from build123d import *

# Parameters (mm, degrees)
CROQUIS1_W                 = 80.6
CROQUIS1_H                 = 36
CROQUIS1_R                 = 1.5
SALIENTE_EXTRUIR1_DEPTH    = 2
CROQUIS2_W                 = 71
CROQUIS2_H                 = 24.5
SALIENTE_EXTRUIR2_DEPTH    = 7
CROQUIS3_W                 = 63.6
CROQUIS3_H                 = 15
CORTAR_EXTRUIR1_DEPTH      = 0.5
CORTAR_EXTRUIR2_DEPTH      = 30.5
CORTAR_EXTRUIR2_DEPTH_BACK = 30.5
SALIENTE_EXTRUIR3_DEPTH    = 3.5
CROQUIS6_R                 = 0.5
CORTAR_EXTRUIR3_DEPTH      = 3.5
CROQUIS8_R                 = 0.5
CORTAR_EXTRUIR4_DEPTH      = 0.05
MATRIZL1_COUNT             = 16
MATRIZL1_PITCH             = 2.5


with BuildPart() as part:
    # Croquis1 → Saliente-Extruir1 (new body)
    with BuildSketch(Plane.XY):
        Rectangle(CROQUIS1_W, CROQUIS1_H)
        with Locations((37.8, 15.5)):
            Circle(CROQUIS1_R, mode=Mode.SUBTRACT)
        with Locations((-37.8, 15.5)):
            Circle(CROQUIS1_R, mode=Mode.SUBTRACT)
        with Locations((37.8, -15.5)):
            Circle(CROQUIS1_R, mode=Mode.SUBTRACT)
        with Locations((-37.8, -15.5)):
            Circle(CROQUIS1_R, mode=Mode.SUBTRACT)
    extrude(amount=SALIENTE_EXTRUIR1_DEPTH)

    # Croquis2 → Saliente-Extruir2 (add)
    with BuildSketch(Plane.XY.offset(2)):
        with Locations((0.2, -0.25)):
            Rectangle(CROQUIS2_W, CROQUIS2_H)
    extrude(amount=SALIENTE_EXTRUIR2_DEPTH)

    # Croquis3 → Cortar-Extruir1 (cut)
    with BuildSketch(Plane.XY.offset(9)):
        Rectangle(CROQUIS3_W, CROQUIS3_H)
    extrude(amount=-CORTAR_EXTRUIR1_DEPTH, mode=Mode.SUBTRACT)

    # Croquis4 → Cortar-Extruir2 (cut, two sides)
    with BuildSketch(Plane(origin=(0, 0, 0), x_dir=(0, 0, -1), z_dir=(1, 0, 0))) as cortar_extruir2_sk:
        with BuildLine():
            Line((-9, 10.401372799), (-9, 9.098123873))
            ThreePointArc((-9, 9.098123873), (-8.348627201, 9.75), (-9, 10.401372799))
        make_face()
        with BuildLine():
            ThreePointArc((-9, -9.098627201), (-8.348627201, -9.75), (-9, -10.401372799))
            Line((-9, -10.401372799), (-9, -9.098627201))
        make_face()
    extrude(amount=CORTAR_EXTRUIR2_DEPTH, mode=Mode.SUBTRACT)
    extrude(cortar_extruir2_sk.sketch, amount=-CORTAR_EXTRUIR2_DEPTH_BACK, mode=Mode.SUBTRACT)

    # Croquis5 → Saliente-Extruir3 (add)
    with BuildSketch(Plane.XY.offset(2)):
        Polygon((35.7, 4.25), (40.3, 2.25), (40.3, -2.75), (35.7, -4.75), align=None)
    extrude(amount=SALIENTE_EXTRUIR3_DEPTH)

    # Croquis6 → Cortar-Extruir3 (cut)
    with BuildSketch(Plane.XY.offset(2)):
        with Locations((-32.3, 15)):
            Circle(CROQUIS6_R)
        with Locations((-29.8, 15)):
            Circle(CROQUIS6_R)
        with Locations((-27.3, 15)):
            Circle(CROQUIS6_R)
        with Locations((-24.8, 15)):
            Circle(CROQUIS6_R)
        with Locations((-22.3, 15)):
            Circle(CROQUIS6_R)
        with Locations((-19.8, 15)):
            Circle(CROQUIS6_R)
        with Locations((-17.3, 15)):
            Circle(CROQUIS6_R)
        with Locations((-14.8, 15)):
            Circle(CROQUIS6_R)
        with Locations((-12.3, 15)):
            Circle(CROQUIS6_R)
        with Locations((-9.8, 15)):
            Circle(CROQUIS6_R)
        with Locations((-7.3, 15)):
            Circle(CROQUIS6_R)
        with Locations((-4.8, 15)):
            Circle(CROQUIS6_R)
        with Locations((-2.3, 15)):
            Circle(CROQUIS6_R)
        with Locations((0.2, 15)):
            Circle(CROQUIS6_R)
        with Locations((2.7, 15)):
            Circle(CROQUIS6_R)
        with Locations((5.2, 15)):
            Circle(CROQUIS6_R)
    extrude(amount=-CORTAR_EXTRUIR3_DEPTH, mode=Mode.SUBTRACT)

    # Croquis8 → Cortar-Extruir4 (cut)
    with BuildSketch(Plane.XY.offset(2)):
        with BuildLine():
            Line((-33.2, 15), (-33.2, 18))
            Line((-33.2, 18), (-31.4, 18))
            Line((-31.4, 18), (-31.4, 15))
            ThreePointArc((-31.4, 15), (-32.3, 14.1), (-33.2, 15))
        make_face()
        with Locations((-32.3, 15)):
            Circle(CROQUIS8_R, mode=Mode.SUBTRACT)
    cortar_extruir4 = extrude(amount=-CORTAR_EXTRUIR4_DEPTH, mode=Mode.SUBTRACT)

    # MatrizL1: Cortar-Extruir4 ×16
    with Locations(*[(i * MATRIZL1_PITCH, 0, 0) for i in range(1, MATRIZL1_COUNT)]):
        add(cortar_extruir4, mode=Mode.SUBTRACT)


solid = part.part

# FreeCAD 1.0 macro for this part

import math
import FreeCAD as App
import Part
import Sketcher

V = App.Vector


def add_polygon(sketch, points):
    """Adds a closed chain of lines whose ends are joined by coincident constraints."""
    first, n = sketch.GeometryCount, len(points)
    for a, b in zip(points, points[1:] + points[:1]):
        sketch.addGeometry(Part.LineSegment(App.Vector(*a, 0), App.Vector(*b, 0)), False)
    for i in range(n):
        sketch.addConstraint(Sketcher.Constraint("Coincident", first + i, 2, first + (i + 1) % n, 1))

doc = App.newDocument("Part")
body = doc.addObject("PartDesign::Body", "Body")

sketch1 = doc.addObject("Sketcher::SketchObject", "Sketch")
body.addObject(sketch1)
sketch1.AttachmentSupport = (doc.XY_Plane, [""])
sketch1.MapMode = "FlatFace"
add_polygon(sketch1, [(-40.3, 18), (-40.3, -18), (40.3, -18), (40.3, 18)])
sketch1.addGeometry(Part.Circle(V(-37.8, -15.5, 0), V(0, 0, 1), 1.5), False)
sketch1.addGeometry(Part.Circle(V(37.8, -15.5, 0), V(0, 0, 1), 1.5), False)
sketch1.addGeometry(Part.Circle(V(-37.8, 15.5, 0), V(0, 0, 1), 1.5), False)
sketch1.addGeometry(Part.Circle(V(37.8, 15.5, 0), V(0, 0, 1), 1.5), False)
sketch1.addConstraint([
    Sketcher.Constraint("Vertical", 0),
    Sketcher.Constraint("Horizontal", 1),
    Sketcher.Constraint("Vertical", 2),
    Sketcher.Constraint("Horizontal", 3),
    Sketcher.Constraint("Equal", 4, 5),
    Sketcher.Constraint("Equal", 5, 6),
    Sketcher.Constraint("Equal", 6, 7),
    Sketcher.Constraint("Symmetric", 5, 3, 6, 3, -1, 1),
    Sketcher.Constraint("Symmetric", 4, 3, 7, 3, -1, 1),
    Sketcher.Constraint("Symmetric", 0, 2, 2, 2, -1, 1),
    Sketcher.Constraint("Symmetric", 4, 3, 5, 3, -2),
    Sketcher.Constraint("Diameter", 4, 3.0),
    Sketcher.Constraint("DistanceY", 0, 2, 0, 1, 36.0),
    Sketcher.Constraint("DistanceX", 1, 1, 1, 2, 80.6),
    Sketcher.Constraint("DistanceY", 4, 3, 6, 3, 31.0),
    Sketcher.Constraint("DistanceX", 4, 3, -1, 1, 37.8),
])
pad1 = doc.addObject("PartDesign::Pad", "Pad")
body.addObject(pad1)
pad1.Profile = sketch1
pad1.Length = 2

sketch2 = doc.addObject("Sketcher::SketchObject", "Sketch001")
body.addObject(sketch2)
sketch2.AttachmentSupport = (doc.XY_Plane, [""])
sketch2.MapMode = "FlatFace"
sketch2.AttachmentOffset = App.Placement(V(0, 0, 2), App.Rotation())
add_polygon(sketch2, [(-35, 12), (-35, -12), (36, -12), (36, 12)])
sketch2.addConstraint([
    Sketcher.Constraint("Vertical", 0),
    Sketcher.Constraint("Horizontal", 1),
    Sketcher.Constraint("Vertical", 2),
    Sketcher.Constraint("Horizontal", 3),
    Sketcher.Constraint("DistanceX", 1, 1, 1, 2, 71.0),
    Sketcher.Constraint("DistanceY", 0, 2, 0, 1, 24.5),
    Sketcher.Constraint("DistanceY", -1, 1, 2, 2, 12.0),
    Sketcher.Constraint("DistanceX", 0, 2, -1, 1, 35.3),
])
pad2 = doc.addObject("PartDesign::Pad", "Pad001")
body.addObject(pad2)
pad2.Profile = sketch2
pad2.Length = 7

sketch3 = doc.addObject("Sketcher::SketchObject", "Sketch002")
body.addObject(sketch3)
sketch3.AttachmentSupport = (doc.XY_Plane, [""])
sketch3.MapMode = "FlatFace"
sketch3.AttachmentOffset = App.Placement(V(0, 0, 9), App.Rotation())
add_polygon(sketch3, [(-32, 8), (-32, -8), (32, -8), (32, 8)])
sketch3.addConstraint([
    Sketcher.Constraint("Vertical", 0),
    Sketcher.Constraint("Horizontal", 1),
    Sketcher.Constraint("Vertical", 2),
    Sketcher.Constraint("Horizontal", 3),
    Sketcher.Constraint("Symmetric", 0, 2, 2, 2, -1, 1),
    Sketcher.Constraint("DistanceY", 0, 2, 0, 1, 15.0),
    Sketcher.Constraint("DistanceX", 1, 1, 1, 2, 63.6),
])
pocket1 = doc.addObject("PartDesign::Pocket", "Pocket")
body.addObject(pocket1)
pocket1.Profile = sketch3
pocket1.Length = 0.5

sketch4 = doc.addObject("Sketcher::SketchObject", "Sketch003")
body.addObject(sketch4)
sketch4.AttachmentSupport = (doc.YZ_Plane, [""])
sketch4.MapMode = "FlatFace"
sketch4.addGeometry([
    Part.LineSegment(V(10.4, 9, 0), V(9.1, 9, 0)),
    Part.ArcOfCircle(Part.Circle(V(9.7, 9, 0), V(0, 0, 1), 0.7), math.radians(-180), math.radians(0)),
    Part.ArcOfCircle(Part.Circle(V(-9.8, 9, 0), V(0, 0, 1), 0.7), math.radians(180), math.radians(360)),
    Part.LineSegment(V(-9.1, 9, 0), V(-10.4, 9, 0)),
], False)
sketch4.addConstraint([
    Sketcher.Constraint("Coincident", 0, 1, 1, 2),
    Sketcher.Constraint("Coincident", 1, 1, 0, 2),
    Sketcher.Constraint("Coincident", 2, 1, 3, 2),
    Sketcher.Constraint("Coincident", 3, 1, 2, 2),
    Sketcher.Constraint("Horizontal", 0),
    Sketcher.Constraint("Horizontal", 3),
    Sketcher.Constraint("Symmetric", 0, 1, 2, 1, -2),
    Sketcher.Constraint("Horizontal", 2, 3, 0, 1),
    Sketcher.Constraint("DistanceY", -1, 1, 2, 3, 9.0),
    Sketcher.Constraint("DistanceX", 3, 1, 0, 1, 19.5),
    Sketcher.Constraint("Radius", 1, 0.651625),
    Sketcher.Constraint("Radius", 2, 0.651373),
    Sketcher.Constraint("DistanceY", -1, 1, 1, 3, 9.000252),
])
pocket2 = doc.addObject("PartDesign::Pocket", "Pocket001")
body.addObject(pocket2)
pocket2.Profile = sketch4
pocket2.Type = "TwoLengths"
pocket2.Length = 30.5
pocket2.Length2 = 30.5
pocket2.Reversed = True

sketch5 = doc.addObject("Sketcher::SketchObject", "Sketch004")
body.addObject(sketch5)
sketch5.AttachmentSupport = (doc.XY_Plane, [""])
sketch5.MapMode = "FlatFace"
sketch5.AttachmentOffset = App.Placement(V(0, 0, 2), App.Rotation())
add_polygon(sketch5, [(40, 2), (36, 4), (36, -5), (40, -3)])
sketch5.addConstraint([
    Sketcher.Constraint("Vertical", 1),
    Sketcher.Constraint("Vertical", 3),
    Sketcher.Constraint("Equal", 0, 2),
    Sketcher.Constraint("DistanceY", 1, 2, 1, 1, 9.0),
    Sketcher.Constraint("DistanceY", 3, 1, 3, 2, 5.0),
    Sketcher.Constraint("DistanceX", -1, 1, 0, 2, 35.7),
    Sketcher.Constraint("DistanceX", -1, 1, 2, 2, 40.3),
    Sketcher.Constraint("DistanceY", -1, 1, 0, 2, 4.25),
])
pad3 = doc.addObject("PartDesign::Pad", "Pad002")
body.addObject(pad3)
pad3.Profile = sketch5
pad3.Length = 3.5

sketch6 = doc.addObject("Sketcher::SketchObject", "Sketch005")
body.addObject(sketch6)
sketch6.AttachmentSupport = (doc.XY_Plane, [""])
sketch6.MapMode = "FlatFace"
sketch6.AttachmentOffset = App.Placement(V(0, 0, 2), App.Rotation())
sketch6.addGeometry([
    Part.Circle(V(-32.3, 15, 0), V(0, 0, 1), 0.5),
    Part.Circle(V(-29.8, 15, 0), V(0, 0, 1), 0.5),
    Part.Circle(V(-27.3, 15, 0), V(0, 0, 1), 0.5),
    Part.Circle(V(-24.8, 15, 0), V(0, 0, 1), 0.5),
    Part.Circle(V(-22.3, 15, 0), V(0, 0, 1), 0.5),
    Part.Circle(V(-19.8, 15, 0), V(0, 0, 1), 0.5),
    Part.Circle(V(-17.3, 15, 0), V(0, 0, 1), 0.5),
    Part.Circle(V(-14.8, 15, 0), V(0, 0, 1), 0.5),
    Part.Circle(V(-12.3, 15, 0), V(0, 0, 1), 0.5),
    Part.Circle(V(-9.8, 15, 0), V(0, 0, 1), 0.5),
    Part.Circle(V(-7.3, 15, 0), V(0, 0, 1), 0.5),
    Part.Circle(V(-4.8, 15, 0), V(0, 0, 1), 0.5),
    Part.Circle(V(-2.3, 15, 0), V(0, 0, 1), 0.5),
    Part.Circle(V(0.2, 15, 0), V(0, 0, 1), 0.5),
    Part.Circle(V(2.7, 15, 0), V(0, 0, 1), 0.5),
    Part.Circle(V(5.2, 15, 0), V(0, 0, 1), 0.5),
], False)
sketch6.addConstraint([
    Sketcher.Constraint("Equal", 0, 1),
    Sketcher.Constraint("Equal", 1, 2),
    Sketcher.Constraint("Equal", 2, 3),
    Sketcher.Constraint("Equal", 3, 4),
    Sketcher.Constraint("Equal", 4, 5),
    Sketcher.Constraint("Equal", 5, 6),
    Sketcher.Constraint("Equal", 6, 7),
    Sketcher.Constraint("Equal", 7, 8),
    Sketcher.Constraint("Equal", 8, 9),
    Sketcher.Constraint("Equal", 9, 10),
    Sketcher.Constraint("Equal", 10, 11),
    Sketcher.Constraint("Equal", 11, 12),
    Sketcher.Constraint("Equal", 12, 13),
    Sketcher.Constraint("Equal", 13, 14),
    Sketcher.Constraint("Equal", 14, 15),
    Sketcher.Constraint("Horizontal", 0, 3, 1, 3),
    Sketcher.Constraint("Horizontal", 1, 3, 2, 3),
    Sketcher.Constraint("Horizontal", 2, 3, 3, 3),
    Sketcher.Constraint("Horizontal", 3, 3, 4, 3),
    Sketcher.Constraint("Horizontal", 4, 3, 5, 3),
    Sketcher.Constraint("Horizontal", 5, 3, 6, 3),
    Sketcher.Constraint("Horizontal", 6, 3, 7, 3),
    Sketcher.Constraint("Horizontal", 7, 3, 8, 3),
    Sketcher.Constraint("Horizontal", 8, 3, 9, 3),
    Sketcher.Constraint("Horizontal", 9, 3, 10, 3),
    Sketcher.Constraint("Horizontal", 10, 3, 11, 3),
    Sketcher.Constraint("Horizontal", 11, 3, 12, 3),
    Sketcher.Constraint("Horizontal", 12, 3, 13, 3),
    Sketcher.Constraint("Horizontal", 13, 3, 14, 3),
    Sketcher.Constraint("Horizontal", 14, 3, 15, 3),
    Sketcher.Constraint("Diameter", 0, 1.0),
    Sketcher.Constraint("DistanceY", -1, 1, 0, 3, 15.0),
    Sketcher.Constraint("DistanceX", 0, 3, 2, 3, 5.0),
    Sketcher.Constraint("DistanceX", 1, 3, 3, 3, 5.0),
    Sketcher.Constraint("DistanceX", 2, 3, 4, 3, 5.0),
    Sketcher.Constraint("DistanceX", 3, 3, 5, 3, 5.0),
    Sketcher.Constraint("DistanceX", 4, 3, 6, 3, 5.0),
    Sketcher.Constraint("DistanceX", 5, 3, 7, 3, 5.0),
    Sketcher.Constraint("DistanceX", 6, 3, 8, 3, 5.0),
    Sketcher.Constraint("DistanceX", 7, 3, 9, 3, 5.0),
    Sketcher.Constraint("DistanceX", 8, 3, 10, 3, 5.0),
    Sketcher.Constraint("DistanceX", 9, 3, 11, 3, 5.0),
    Sketcher.Constraint("DistanceX", 10, 3, 12, 3, 5.0),
    Sketcher.Constraint("DistanceX", 11, 3, 13, 3, 5.0),
    Sketcher.Constraint("DistanceX", 12, 3, 14, 3, 5.0),
    Sketcher.Constraint("DistanceX", 13, 3, 15, 3, 5.0),
    Sketcher.Constraint("DistanceX", 0, 3, -1, 1, 32.3),
    Sketcher.Constraint("DistanceX", 1, 3, -1, 1, 29.8),
])
pocket3 = doc.addObject("PartDesign::Pocket", "Pocket002")
body.addObject(pocket3)
pocket3.Profile = sketch6
pocket3.Length = 3.5

sketch7 = doc.addObject("Sketcher::SketchObject", "Sketch006")
body.addObject(sketch7)
sketch7.AttachmentSupport = (doc.XY_Plane, [""])
sketch7.MapMode = "FlatFace"
sketch7.AttachmentOffset = App.Placement(V(0, 0, 2), App.Rotation())
sketch7.addGeometry([
    Part.LineSegment(V(-33.2, 18, 0), V(-33.2, 15, 0)),
    Part.ArcOfCircle(Part.Circle(V(-32.3, 15, 0), V(0, 0, 1), 0.9), math.radians(180), math.radians(360)),
    Part.LineSegment(V(-31.4, 15, 0), V(-31.4, 18, 0)),
    Part.LineSegment(V(-31.4, 18, 0), V(-33.2, 18, 0)),
    Part.Circle(V(-32.3, 15, 0), V(0, 0, 1), 0.5),
], False)
sketch7.addConstraint([
    Sketcher.Constraint("Tangent", 0, 2, 1, 1),
    Sketcher.Constraint("Tangent", 1, 2, 2, 1),
    Sketcher.Constraint("Coincident", 2, 2, 3, 1),
    Sketcher.Constraint("Coincident", 3, 2, 0, 1),
    Sketcher.Constraint("Vertical", 0),
    Sketcher.Constraint("Vertical", 2),
    Sketcher.Constraint("Horizontal", 3),
    Sketcher.Constraint("Coincident", 4, 3, 1, 3),
    Sketcher.Constraint("Diameter", 4, 1.0),
    Sketcher.Constraint("Radius", 1, 0.9),
    Sketcher.Constraint("DistanceY", 0, 2, 0, 1, 3.0),
    Sketcher.Constraint("DistanceY", -1, 1, 1, 3, 15.0),
    Sketcher.Constraint("DistanceX", 1, 3, -1, 1, 32.3),
])
pocket4 = doc.addObject("PartDesign::Pocket", "Pocket003")
body.addObject(pocket4)
pocket4.Profile = sketch7
pocket4.Length = 0.05
doc.recompute()

linearpattern = doc.addObject("PartDesign::LinearPattern", "LinearPattern")
body.addObject(linearpattern)
linearpattern.Originals = [pocket4]
linearpattern.Direction = (doc.X_Axis, [""])
linearpattern.Mode = "offset"
linearpattern.Offset = 2.5
linearpattern.Occurrences = 16
body.Tip = linearpattern

doc.recompute()
